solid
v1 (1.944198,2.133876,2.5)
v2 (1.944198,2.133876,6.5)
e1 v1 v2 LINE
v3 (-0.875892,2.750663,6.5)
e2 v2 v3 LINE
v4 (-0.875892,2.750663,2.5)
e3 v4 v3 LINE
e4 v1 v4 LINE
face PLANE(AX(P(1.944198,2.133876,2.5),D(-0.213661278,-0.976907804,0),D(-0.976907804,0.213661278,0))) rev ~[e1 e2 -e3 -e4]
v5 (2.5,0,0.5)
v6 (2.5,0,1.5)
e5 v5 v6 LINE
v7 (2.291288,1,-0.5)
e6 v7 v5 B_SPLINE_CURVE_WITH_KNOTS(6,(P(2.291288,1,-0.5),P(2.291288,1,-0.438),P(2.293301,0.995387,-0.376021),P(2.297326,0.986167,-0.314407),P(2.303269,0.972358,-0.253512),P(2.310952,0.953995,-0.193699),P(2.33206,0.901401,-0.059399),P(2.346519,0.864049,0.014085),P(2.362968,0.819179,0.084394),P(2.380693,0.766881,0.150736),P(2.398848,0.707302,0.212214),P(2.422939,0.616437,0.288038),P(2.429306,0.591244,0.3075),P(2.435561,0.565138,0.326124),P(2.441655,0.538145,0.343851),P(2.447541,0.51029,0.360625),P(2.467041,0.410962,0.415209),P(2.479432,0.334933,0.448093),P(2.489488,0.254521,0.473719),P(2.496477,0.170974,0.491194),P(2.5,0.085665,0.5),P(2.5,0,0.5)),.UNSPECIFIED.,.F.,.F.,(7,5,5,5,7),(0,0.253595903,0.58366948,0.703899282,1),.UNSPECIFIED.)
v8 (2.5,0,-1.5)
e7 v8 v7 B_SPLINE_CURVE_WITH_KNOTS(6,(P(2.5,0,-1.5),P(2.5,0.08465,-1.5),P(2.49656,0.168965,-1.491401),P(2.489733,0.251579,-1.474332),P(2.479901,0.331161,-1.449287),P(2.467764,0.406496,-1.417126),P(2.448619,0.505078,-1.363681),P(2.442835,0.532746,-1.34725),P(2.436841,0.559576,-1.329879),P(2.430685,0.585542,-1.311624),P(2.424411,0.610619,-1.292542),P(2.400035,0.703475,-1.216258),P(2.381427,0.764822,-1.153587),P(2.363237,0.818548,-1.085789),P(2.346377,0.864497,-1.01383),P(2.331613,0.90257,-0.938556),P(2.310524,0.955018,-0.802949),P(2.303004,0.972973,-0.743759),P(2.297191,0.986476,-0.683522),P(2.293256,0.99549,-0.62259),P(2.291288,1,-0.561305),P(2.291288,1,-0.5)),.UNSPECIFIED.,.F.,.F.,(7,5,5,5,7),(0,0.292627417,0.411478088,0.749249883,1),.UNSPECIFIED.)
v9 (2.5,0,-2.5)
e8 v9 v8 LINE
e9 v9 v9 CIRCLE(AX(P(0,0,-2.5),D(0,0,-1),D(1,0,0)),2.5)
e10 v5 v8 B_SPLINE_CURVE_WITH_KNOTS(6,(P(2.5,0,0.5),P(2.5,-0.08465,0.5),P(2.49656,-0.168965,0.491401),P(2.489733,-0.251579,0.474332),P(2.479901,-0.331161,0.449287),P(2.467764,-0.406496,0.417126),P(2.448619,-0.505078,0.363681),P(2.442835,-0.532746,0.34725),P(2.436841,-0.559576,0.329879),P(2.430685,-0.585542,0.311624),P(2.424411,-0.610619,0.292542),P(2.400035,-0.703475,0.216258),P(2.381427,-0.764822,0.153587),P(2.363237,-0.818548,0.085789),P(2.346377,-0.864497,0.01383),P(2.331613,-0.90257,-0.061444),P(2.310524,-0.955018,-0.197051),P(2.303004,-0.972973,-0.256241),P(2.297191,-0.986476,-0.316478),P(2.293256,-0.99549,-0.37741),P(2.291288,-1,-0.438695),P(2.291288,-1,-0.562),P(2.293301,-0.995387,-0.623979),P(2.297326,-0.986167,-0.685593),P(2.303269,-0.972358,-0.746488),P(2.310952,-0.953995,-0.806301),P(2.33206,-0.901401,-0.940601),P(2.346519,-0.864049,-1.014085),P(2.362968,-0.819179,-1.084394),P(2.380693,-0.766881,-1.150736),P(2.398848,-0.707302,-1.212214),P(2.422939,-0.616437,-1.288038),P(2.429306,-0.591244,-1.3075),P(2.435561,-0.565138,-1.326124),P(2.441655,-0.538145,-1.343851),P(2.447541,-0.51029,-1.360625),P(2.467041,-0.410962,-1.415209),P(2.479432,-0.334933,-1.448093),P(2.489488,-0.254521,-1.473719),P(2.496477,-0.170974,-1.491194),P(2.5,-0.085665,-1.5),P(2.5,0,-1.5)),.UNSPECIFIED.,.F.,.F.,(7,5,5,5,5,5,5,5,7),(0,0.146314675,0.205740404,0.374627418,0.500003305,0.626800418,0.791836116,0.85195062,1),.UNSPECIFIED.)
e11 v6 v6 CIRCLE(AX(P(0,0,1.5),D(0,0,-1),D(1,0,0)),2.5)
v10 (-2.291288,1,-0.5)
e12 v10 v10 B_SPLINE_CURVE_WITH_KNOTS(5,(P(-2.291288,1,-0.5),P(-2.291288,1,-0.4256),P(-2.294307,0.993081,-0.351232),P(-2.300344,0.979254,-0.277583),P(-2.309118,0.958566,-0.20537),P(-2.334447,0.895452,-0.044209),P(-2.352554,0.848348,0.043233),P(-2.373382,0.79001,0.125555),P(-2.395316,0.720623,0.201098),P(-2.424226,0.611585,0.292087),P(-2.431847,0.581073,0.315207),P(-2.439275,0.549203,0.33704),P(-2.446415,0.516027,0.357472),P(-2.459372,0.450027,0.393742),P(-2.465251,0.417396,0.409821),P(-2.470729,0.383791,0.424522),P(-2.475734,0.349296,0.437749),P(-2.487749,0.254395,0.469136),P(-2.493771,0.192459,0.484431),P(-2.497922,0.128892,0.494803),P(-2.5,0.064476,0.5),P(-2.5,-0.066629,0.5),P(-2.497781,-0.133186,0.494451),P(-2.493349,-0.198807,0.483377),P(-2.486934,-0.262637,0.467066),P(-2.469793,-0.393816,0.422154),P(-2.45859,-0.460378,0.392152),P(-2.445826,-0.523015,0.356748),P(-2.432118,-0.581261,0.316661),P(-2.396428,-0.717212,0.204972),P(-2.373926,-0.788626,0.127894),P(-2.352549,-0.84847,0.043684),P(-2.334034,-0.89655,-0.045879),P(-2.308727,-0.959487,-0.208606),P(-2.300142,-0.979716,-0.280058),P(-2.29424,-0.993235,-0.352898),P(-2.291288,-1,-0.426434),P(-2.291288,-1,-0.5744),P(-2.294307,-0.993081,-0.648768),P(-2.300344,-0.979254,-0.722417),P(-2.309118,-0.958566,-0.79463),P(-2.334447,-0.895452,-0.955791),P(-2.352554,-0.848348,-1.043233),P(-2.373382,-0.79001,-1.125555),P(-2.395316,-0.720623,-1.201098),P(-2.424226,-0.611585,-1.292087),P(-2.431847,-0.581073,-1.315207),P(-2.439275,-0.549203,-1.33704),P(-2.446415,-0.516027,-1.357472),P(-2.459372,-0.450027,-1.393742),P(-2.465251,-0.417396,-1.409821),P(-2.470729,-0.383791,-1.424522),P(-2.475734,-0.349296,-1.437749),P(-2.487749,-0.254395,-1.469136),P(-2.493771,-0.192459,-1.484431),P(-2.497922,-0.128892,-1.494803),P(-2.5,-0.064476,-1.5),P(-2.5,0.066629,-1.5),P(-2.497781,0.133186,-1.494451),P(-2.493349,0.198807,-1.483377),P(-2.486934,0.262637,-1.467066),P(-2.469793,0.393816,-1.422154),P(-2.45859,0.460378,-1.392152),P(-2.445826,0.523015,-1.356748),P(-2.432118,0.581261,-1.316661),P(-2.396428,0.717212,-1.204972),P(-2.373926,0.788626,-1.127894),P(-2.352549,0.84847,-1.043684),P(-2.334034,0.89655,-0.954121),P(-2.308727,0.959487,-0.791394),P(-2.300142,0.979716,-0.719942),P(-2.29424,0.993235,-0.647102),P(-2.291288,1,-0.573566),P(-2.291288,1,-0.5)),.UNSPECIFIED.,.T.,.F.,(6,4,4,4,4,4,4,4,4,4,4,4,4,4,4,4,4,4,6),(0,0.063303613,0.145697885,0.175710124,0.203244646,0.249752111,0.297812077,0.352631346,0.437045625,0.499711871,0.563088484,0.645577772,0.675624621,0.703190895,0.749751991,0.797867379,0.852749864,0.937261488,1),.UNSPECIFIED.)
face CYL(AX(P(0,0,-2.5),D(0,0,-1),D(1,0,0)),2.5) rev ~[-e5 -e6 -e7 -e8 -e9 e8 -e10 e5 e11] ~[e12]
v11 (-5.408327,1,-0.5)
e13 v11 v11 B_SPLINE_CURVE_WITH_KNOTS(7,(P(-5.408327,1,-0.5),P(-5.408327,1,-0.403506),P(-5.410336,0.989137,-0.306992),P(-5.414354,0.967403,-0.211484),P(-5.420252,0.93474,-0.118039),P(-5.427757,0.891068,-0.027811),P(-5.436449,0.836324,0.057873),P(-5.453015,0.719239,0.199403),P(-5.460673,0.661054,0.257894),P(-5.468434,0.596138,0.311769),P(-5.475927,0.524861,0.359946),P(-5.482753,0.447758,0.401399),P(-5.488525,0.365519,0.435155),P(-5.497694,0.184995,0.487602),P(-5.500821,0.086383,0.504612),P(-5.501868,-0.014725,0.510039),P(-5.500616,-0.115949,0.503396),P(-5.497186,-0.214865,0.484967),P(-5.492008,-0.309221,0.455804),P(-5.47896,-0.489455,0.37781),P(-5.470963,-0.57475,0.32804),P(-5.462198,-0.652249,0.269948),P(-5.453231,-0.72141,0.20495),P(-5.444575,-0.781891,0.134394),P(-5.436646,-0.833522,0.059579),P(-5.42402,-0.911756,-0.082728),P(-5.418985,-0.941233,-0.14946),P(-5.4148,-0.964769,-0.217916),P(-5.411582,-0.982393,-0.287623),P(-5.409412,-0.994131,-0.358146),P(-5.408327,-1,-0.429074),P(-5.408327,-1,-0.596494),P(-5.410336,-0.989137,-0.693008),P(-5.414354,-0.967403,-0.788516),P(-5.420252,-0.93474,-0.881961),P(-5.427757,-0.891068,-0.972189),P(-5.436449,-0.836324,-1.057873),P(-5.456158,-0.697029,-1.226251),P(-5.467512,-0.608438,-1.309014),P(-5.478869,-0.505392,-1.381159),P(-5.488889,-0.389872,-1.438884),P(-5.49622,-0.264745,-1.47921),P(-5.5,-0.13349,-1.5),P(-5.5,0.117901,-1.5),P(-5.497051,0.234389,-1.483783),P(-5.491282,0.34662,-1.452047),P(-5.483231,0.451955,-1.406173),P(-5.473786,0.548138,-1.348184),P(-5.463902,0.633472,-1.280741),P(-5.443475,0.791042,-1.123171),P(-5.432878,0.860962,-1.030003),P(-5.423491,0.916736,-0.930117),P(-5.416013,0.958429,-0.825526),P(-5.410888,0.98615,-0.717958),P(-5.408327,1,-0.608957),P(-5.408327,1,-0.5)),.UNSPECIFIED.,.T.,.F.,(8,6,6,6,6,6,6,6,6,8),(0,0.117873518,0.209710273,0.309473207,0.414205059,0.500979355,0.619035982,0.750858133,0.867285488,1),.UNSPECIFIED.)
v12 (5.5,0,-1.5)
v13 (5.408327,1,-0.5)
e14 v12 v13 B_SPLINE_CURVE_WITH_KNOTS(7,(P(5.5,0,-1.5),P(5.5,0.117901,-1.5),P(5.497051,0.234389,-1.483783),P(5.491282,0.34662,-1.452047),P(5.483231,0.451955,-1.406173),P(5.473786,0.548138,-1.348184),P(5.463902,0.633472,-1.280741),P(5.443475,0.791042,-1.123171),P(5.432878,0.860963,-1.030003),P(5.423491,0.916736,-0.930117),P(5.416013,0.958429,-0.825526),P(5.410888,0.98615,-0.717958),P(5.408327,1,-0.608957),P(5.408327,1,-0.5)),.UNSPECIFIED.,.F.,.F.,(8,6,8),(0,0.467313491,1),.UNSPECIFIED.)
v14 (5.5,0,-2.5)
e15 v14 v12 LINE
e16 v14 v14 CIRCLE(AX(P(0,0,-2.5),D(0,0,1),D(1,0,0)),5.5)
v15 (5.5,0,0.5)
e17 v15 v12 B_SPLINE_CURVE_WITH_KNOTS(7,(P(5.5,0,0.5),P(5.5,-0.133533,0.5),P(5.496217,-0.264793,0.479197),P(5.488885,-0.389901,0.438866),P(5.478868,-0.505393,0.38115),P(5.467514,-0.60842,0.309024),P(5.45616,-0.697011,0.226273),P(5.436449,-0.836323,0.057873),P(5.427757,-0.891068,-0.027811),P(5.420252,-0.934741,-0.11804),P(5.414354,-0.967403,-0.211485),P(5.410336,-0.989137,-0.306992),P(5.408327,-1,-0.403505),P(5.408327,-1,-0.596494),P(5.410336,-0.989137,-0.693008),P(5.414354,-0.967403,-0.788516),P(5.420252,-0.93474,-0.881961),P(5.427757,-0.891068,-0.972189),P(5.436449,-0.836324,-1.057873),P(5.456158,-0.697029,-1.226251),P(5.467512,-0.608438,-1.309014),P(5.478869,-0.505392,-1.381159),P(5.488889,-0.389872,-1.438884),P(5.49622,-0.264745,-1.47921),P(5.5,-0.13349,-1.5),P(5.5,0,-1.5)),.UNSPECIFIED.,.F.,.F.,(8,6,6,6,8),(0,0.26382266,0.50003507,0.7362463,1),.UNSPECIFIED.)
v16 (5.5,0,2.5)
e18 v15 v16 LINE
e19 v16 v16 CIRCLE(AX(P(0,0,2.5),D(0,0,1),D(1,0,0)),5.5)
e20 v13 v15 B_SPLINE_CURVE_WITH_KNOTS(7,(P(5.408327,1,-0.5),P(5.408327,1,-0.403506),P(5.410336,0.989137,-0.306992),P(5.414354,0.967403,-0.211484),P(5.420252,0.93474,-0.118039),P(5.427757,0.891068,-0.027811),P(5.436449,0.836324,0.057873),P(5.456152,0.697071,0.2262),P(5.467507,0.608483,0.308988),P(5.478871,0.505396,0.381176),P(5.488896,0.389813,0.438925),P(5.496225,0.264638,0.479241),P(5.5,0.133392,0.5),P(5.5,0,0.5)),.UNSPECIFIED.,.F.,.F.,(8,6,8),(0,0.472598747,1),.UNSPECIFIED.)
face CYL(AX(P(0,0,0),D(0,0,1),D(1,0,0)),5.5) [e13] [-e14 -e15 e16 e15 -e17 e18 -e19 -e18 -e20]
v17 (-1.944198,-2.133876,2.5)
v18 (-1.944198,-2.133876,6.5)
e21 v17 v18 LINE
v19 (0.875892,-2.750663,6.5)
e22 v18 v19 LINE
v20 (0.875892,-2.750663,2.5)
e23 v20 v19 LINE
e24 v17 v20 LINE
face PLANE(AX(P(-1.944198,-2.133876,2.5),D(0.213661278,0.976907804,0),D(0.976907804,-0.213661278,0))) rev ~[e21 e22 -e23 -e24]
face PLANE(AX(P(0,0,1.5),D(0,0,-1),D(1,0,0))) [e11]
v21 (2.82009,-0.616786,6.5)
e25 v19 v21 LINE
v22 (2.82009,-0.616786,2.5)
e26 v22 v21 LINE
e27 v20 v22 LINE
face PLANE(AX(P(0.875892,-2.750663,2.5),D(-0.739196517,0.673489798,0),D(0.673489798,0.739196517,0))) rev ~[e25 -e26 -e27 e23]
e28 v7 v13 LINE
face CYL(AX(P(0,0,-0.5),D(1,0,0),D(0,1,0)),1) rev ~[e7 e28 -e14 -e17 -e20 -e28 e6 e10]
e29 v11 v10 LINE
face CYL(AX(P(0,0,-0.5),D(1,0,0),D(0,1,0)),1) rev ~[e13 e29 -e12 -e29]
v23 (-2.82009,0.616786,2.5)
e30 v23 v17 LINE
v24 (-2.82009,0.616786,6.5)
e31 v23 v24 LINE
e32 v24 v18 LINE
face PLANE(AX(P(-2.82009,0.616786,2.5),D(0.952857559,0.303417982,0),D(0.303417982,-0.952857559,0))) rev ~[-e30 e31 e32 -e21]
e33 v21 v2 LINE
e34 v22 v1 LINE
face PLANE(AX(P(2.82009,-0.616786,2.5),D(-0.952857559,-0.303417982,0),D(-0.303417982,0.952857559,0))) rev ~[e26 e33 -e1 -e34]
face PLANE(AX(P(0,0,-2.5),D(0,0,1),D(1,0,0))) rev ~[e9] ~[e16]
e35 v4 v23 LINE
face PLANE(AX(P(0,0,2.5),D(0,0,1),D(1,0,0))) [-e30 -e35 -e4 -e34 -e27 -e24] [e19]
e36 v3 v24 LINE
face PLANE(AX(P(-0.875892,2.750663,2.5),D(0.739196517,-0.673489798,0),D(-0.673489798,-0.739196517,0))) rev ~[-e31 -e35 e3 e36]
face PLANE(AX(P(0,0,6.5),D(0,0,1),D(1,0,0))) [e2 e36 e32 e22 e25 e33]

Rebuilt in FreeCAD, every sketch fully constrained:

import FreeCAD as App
import Part
import Sketcher

doc = App.newDocument("Part")
params = doc.addObject("Spreadsheet::Sheet", "Params")
for row, (alias, value) in enumerate([
    ("sketch1_diameter", "11 mm"),
    ("pad1_length", "5 mm"),
    ("pad2_length", "4 mm"),
    ("sketch3_diameter", "5 mm"),
    ("pocket1_length", "4 mm"),
    ("sketch4_diameter", "2 mm"),
    ("pocket2_length", "25 mm"),
], start=1):
    params.set(f"A{row}", alias)
    params.set(f"B{row}", "=" + value)
    params.setAlias(f"B{row}", alias)

body = doc.addObject("PartDesign::Body", "Body")

sketch1 = body.newObject("Sketcher::SketchObject", "Sketch")
sketch1.AttachmentSupport = (doc.getObject("XY_Plane"), [""])
sketch1.MapMode = "FlatFace"
sketch1.addGeometry(Part.Circle(App.Vector(0, 0, 0), App.Vector(0, 0, 1), 6), False)
sketch1.addConstraint(Sketcher.Constraint("Coincident", 0, 3, -1, 1))
sketch1.addConstraint(Sketcher.Constraint("Diameter", 0, 11.0))
sketch1.setExpression("Constraints[1]", "Params.sketch1_diameter")
pad1 = body.newObject("PartDesign::Pad", "Pad")
pad1.Profile = sketch1
pad1.setExpression("Length", "Params.pad1_length")
pad1.Midplane = True

sketch2 = body.newObject("Sketcher::SketchObject", "Sketch001")
sketch2.AttachmentSupport = (doc.getObject("XY_Plane"), [""])
sketch2.MapMode = "FlatFace"
sketch2.AttachmentOffset = App.Placement(App.Vector(0, 0, 2.5), App.Rotation())
sketch2.addGeometry(Part.LineSegment(App.Vector(0.9, -2.8, 0), App.Vector(2.8, -0.6, 0)), False)
sketch2.addGeometry(Part.LineSegment(App.Vector(2.8, -0.6, 0), App.Vector(1.9, 2.1, 0)), False)
sketch2.addGeometry(Part.LineSegment(App.Vector(1.9, 2.1, 0), App.Vector(-0.9, 2.8, 0)), False)
sketch2.addGeometry(Part.LineSegment(App.Vector(-0.9, 2.8, 0), App.Vector(-2.8, 0.6, 0)), False)
sketch2.addGeometry(Part.LineSegment(App.Vector(-2.8, 0.6, 0), App.Vector(-1.9, -2.1, 0)), False)
sketch2.addGeometry(Part.LineSegment(App.Vector(-1.9, -2.1, 0), App.Vector(0.9, -2.8, 0)), False)
sketch2.addConstraint(Sketcher.Constraint("Coincident", 0, 2, 1, 1))
sketch2.addConstraint(Sketcher.Constraint("Coincident", 1, 2, 2, 1))
sketch2.addConstraint(Sketcher.Constraint("Coincident", 2, 2, 3, 1))
sketch2.addConstraint(Sketcher.Constraint("Coincident", 3, 2, 4, 1))
sketch2.addConstraint(Sketcher.Constraint("Coincident", 4, 2, 5, 1))
sketch2.addConstraint(Sketcher.Constraint("Coincident", 5, 2, 0, 1))
sketch2.addConstraint(Sketcher.Constraint("Symmetric", 0, 2, 3, 2, -1, 1))
sketch2.addConstraint(Sketcher.Constraint("Symmetric", 1, 2, 4, 2, -1, 1))
sketch2.addConstraint(Sketcher.Constraint("Symmetric", 2, 2, 5, 2, -1, 1))
sketch2.addConstraint(Sketcher.Constraint("Equal", 0, 1))
sketch2.addConstraint(Sketcher.Constraint("Equal", 1, 2))
sketch2.addConstraint(Sketcher.Constraint("DistanceX", -1, 1, 1, 2, 1.944198))
sketch2.addConstraint(Sketcher.Constraint("DistanceX", 3, 2, 2, 2, 1.944198))
sketch2.addConstraint(Sketcher.Constraint("Distance", 0, 2.886752))
sketch2.addConstraint(Sketcher.Constraint("DistanceX", -1, 1, 0, 2, 2.82009))
pad2 = body.newObject("PartDesign::Pad", "Pad001")
pad2.Profile = sketch2
pad2.setExpression("Length", "Params.pad2_length")

sketch3 = body.newObject("Sketcher::SketchObject", "Sketch002")
sketch3.AttachmentSupport = (doc.getObject("XY_Plane"), [""])
sketch3.MapMode = "FlatFace"
sketch3.AttachmentOffset = App.Placement(App.Vector(0, 0, -2.5), App.Rotation())
sketch3.addGeometry(Part.Circle(App.Vector(0, 0, 0), App.Vector(0, 0, 1), 2.5), False)
sketch3.addConstraint(Sketcher.Constraint("Coincident", 0, 3, -1, 1))
sketch3.addConstraint(Sketcher.Constraint("Diameter", 0, 5.0))
sketch3.setExpression("Constraints[1]", "Params.sketch3_diameter")
pocket1 = body.newObject("PartDesign::Pocket", "Pocket")
pocket1.Profile = sketch3
pocket1.setExpression("Length", "Params.pocket1_length")
pocket1.Reversed = True

sketch4 = body.newObject("Sketcher::SketchObject", "Sketch003")
sketch4.AttachmentSupport = (doc.getObject("YZ_Plane"), [""])
sketch4.MapMode = "FlatFace"
sketch4.addGeometry(Part.Circle(App.Vector(0, -0.5, 0), App.Vector(0, 0, 1), 1), False)
sketch4.addConstraint(Sketcher.Constraint("PointOnObject", 0, 3, -2))
sketch4.addConstraint(Sketcher.Constraint("Diameter", 0, 2.0))
sketch4.addConstraint(Sketcher.Constraint("DistanceY", 0, 3, -1, 1, 0.5))
sketch4.setExpression("Constraints[1]", "Params.sketch4_diameter")
pocket2 = body.newObject("PartDesign::Pocket", "Pocket001")
pocket2.Profile = sketch4
pocket2.setExpression("Length", "Params.pocket2_length")
pocket2.Midplane = True

doc.recompute()
